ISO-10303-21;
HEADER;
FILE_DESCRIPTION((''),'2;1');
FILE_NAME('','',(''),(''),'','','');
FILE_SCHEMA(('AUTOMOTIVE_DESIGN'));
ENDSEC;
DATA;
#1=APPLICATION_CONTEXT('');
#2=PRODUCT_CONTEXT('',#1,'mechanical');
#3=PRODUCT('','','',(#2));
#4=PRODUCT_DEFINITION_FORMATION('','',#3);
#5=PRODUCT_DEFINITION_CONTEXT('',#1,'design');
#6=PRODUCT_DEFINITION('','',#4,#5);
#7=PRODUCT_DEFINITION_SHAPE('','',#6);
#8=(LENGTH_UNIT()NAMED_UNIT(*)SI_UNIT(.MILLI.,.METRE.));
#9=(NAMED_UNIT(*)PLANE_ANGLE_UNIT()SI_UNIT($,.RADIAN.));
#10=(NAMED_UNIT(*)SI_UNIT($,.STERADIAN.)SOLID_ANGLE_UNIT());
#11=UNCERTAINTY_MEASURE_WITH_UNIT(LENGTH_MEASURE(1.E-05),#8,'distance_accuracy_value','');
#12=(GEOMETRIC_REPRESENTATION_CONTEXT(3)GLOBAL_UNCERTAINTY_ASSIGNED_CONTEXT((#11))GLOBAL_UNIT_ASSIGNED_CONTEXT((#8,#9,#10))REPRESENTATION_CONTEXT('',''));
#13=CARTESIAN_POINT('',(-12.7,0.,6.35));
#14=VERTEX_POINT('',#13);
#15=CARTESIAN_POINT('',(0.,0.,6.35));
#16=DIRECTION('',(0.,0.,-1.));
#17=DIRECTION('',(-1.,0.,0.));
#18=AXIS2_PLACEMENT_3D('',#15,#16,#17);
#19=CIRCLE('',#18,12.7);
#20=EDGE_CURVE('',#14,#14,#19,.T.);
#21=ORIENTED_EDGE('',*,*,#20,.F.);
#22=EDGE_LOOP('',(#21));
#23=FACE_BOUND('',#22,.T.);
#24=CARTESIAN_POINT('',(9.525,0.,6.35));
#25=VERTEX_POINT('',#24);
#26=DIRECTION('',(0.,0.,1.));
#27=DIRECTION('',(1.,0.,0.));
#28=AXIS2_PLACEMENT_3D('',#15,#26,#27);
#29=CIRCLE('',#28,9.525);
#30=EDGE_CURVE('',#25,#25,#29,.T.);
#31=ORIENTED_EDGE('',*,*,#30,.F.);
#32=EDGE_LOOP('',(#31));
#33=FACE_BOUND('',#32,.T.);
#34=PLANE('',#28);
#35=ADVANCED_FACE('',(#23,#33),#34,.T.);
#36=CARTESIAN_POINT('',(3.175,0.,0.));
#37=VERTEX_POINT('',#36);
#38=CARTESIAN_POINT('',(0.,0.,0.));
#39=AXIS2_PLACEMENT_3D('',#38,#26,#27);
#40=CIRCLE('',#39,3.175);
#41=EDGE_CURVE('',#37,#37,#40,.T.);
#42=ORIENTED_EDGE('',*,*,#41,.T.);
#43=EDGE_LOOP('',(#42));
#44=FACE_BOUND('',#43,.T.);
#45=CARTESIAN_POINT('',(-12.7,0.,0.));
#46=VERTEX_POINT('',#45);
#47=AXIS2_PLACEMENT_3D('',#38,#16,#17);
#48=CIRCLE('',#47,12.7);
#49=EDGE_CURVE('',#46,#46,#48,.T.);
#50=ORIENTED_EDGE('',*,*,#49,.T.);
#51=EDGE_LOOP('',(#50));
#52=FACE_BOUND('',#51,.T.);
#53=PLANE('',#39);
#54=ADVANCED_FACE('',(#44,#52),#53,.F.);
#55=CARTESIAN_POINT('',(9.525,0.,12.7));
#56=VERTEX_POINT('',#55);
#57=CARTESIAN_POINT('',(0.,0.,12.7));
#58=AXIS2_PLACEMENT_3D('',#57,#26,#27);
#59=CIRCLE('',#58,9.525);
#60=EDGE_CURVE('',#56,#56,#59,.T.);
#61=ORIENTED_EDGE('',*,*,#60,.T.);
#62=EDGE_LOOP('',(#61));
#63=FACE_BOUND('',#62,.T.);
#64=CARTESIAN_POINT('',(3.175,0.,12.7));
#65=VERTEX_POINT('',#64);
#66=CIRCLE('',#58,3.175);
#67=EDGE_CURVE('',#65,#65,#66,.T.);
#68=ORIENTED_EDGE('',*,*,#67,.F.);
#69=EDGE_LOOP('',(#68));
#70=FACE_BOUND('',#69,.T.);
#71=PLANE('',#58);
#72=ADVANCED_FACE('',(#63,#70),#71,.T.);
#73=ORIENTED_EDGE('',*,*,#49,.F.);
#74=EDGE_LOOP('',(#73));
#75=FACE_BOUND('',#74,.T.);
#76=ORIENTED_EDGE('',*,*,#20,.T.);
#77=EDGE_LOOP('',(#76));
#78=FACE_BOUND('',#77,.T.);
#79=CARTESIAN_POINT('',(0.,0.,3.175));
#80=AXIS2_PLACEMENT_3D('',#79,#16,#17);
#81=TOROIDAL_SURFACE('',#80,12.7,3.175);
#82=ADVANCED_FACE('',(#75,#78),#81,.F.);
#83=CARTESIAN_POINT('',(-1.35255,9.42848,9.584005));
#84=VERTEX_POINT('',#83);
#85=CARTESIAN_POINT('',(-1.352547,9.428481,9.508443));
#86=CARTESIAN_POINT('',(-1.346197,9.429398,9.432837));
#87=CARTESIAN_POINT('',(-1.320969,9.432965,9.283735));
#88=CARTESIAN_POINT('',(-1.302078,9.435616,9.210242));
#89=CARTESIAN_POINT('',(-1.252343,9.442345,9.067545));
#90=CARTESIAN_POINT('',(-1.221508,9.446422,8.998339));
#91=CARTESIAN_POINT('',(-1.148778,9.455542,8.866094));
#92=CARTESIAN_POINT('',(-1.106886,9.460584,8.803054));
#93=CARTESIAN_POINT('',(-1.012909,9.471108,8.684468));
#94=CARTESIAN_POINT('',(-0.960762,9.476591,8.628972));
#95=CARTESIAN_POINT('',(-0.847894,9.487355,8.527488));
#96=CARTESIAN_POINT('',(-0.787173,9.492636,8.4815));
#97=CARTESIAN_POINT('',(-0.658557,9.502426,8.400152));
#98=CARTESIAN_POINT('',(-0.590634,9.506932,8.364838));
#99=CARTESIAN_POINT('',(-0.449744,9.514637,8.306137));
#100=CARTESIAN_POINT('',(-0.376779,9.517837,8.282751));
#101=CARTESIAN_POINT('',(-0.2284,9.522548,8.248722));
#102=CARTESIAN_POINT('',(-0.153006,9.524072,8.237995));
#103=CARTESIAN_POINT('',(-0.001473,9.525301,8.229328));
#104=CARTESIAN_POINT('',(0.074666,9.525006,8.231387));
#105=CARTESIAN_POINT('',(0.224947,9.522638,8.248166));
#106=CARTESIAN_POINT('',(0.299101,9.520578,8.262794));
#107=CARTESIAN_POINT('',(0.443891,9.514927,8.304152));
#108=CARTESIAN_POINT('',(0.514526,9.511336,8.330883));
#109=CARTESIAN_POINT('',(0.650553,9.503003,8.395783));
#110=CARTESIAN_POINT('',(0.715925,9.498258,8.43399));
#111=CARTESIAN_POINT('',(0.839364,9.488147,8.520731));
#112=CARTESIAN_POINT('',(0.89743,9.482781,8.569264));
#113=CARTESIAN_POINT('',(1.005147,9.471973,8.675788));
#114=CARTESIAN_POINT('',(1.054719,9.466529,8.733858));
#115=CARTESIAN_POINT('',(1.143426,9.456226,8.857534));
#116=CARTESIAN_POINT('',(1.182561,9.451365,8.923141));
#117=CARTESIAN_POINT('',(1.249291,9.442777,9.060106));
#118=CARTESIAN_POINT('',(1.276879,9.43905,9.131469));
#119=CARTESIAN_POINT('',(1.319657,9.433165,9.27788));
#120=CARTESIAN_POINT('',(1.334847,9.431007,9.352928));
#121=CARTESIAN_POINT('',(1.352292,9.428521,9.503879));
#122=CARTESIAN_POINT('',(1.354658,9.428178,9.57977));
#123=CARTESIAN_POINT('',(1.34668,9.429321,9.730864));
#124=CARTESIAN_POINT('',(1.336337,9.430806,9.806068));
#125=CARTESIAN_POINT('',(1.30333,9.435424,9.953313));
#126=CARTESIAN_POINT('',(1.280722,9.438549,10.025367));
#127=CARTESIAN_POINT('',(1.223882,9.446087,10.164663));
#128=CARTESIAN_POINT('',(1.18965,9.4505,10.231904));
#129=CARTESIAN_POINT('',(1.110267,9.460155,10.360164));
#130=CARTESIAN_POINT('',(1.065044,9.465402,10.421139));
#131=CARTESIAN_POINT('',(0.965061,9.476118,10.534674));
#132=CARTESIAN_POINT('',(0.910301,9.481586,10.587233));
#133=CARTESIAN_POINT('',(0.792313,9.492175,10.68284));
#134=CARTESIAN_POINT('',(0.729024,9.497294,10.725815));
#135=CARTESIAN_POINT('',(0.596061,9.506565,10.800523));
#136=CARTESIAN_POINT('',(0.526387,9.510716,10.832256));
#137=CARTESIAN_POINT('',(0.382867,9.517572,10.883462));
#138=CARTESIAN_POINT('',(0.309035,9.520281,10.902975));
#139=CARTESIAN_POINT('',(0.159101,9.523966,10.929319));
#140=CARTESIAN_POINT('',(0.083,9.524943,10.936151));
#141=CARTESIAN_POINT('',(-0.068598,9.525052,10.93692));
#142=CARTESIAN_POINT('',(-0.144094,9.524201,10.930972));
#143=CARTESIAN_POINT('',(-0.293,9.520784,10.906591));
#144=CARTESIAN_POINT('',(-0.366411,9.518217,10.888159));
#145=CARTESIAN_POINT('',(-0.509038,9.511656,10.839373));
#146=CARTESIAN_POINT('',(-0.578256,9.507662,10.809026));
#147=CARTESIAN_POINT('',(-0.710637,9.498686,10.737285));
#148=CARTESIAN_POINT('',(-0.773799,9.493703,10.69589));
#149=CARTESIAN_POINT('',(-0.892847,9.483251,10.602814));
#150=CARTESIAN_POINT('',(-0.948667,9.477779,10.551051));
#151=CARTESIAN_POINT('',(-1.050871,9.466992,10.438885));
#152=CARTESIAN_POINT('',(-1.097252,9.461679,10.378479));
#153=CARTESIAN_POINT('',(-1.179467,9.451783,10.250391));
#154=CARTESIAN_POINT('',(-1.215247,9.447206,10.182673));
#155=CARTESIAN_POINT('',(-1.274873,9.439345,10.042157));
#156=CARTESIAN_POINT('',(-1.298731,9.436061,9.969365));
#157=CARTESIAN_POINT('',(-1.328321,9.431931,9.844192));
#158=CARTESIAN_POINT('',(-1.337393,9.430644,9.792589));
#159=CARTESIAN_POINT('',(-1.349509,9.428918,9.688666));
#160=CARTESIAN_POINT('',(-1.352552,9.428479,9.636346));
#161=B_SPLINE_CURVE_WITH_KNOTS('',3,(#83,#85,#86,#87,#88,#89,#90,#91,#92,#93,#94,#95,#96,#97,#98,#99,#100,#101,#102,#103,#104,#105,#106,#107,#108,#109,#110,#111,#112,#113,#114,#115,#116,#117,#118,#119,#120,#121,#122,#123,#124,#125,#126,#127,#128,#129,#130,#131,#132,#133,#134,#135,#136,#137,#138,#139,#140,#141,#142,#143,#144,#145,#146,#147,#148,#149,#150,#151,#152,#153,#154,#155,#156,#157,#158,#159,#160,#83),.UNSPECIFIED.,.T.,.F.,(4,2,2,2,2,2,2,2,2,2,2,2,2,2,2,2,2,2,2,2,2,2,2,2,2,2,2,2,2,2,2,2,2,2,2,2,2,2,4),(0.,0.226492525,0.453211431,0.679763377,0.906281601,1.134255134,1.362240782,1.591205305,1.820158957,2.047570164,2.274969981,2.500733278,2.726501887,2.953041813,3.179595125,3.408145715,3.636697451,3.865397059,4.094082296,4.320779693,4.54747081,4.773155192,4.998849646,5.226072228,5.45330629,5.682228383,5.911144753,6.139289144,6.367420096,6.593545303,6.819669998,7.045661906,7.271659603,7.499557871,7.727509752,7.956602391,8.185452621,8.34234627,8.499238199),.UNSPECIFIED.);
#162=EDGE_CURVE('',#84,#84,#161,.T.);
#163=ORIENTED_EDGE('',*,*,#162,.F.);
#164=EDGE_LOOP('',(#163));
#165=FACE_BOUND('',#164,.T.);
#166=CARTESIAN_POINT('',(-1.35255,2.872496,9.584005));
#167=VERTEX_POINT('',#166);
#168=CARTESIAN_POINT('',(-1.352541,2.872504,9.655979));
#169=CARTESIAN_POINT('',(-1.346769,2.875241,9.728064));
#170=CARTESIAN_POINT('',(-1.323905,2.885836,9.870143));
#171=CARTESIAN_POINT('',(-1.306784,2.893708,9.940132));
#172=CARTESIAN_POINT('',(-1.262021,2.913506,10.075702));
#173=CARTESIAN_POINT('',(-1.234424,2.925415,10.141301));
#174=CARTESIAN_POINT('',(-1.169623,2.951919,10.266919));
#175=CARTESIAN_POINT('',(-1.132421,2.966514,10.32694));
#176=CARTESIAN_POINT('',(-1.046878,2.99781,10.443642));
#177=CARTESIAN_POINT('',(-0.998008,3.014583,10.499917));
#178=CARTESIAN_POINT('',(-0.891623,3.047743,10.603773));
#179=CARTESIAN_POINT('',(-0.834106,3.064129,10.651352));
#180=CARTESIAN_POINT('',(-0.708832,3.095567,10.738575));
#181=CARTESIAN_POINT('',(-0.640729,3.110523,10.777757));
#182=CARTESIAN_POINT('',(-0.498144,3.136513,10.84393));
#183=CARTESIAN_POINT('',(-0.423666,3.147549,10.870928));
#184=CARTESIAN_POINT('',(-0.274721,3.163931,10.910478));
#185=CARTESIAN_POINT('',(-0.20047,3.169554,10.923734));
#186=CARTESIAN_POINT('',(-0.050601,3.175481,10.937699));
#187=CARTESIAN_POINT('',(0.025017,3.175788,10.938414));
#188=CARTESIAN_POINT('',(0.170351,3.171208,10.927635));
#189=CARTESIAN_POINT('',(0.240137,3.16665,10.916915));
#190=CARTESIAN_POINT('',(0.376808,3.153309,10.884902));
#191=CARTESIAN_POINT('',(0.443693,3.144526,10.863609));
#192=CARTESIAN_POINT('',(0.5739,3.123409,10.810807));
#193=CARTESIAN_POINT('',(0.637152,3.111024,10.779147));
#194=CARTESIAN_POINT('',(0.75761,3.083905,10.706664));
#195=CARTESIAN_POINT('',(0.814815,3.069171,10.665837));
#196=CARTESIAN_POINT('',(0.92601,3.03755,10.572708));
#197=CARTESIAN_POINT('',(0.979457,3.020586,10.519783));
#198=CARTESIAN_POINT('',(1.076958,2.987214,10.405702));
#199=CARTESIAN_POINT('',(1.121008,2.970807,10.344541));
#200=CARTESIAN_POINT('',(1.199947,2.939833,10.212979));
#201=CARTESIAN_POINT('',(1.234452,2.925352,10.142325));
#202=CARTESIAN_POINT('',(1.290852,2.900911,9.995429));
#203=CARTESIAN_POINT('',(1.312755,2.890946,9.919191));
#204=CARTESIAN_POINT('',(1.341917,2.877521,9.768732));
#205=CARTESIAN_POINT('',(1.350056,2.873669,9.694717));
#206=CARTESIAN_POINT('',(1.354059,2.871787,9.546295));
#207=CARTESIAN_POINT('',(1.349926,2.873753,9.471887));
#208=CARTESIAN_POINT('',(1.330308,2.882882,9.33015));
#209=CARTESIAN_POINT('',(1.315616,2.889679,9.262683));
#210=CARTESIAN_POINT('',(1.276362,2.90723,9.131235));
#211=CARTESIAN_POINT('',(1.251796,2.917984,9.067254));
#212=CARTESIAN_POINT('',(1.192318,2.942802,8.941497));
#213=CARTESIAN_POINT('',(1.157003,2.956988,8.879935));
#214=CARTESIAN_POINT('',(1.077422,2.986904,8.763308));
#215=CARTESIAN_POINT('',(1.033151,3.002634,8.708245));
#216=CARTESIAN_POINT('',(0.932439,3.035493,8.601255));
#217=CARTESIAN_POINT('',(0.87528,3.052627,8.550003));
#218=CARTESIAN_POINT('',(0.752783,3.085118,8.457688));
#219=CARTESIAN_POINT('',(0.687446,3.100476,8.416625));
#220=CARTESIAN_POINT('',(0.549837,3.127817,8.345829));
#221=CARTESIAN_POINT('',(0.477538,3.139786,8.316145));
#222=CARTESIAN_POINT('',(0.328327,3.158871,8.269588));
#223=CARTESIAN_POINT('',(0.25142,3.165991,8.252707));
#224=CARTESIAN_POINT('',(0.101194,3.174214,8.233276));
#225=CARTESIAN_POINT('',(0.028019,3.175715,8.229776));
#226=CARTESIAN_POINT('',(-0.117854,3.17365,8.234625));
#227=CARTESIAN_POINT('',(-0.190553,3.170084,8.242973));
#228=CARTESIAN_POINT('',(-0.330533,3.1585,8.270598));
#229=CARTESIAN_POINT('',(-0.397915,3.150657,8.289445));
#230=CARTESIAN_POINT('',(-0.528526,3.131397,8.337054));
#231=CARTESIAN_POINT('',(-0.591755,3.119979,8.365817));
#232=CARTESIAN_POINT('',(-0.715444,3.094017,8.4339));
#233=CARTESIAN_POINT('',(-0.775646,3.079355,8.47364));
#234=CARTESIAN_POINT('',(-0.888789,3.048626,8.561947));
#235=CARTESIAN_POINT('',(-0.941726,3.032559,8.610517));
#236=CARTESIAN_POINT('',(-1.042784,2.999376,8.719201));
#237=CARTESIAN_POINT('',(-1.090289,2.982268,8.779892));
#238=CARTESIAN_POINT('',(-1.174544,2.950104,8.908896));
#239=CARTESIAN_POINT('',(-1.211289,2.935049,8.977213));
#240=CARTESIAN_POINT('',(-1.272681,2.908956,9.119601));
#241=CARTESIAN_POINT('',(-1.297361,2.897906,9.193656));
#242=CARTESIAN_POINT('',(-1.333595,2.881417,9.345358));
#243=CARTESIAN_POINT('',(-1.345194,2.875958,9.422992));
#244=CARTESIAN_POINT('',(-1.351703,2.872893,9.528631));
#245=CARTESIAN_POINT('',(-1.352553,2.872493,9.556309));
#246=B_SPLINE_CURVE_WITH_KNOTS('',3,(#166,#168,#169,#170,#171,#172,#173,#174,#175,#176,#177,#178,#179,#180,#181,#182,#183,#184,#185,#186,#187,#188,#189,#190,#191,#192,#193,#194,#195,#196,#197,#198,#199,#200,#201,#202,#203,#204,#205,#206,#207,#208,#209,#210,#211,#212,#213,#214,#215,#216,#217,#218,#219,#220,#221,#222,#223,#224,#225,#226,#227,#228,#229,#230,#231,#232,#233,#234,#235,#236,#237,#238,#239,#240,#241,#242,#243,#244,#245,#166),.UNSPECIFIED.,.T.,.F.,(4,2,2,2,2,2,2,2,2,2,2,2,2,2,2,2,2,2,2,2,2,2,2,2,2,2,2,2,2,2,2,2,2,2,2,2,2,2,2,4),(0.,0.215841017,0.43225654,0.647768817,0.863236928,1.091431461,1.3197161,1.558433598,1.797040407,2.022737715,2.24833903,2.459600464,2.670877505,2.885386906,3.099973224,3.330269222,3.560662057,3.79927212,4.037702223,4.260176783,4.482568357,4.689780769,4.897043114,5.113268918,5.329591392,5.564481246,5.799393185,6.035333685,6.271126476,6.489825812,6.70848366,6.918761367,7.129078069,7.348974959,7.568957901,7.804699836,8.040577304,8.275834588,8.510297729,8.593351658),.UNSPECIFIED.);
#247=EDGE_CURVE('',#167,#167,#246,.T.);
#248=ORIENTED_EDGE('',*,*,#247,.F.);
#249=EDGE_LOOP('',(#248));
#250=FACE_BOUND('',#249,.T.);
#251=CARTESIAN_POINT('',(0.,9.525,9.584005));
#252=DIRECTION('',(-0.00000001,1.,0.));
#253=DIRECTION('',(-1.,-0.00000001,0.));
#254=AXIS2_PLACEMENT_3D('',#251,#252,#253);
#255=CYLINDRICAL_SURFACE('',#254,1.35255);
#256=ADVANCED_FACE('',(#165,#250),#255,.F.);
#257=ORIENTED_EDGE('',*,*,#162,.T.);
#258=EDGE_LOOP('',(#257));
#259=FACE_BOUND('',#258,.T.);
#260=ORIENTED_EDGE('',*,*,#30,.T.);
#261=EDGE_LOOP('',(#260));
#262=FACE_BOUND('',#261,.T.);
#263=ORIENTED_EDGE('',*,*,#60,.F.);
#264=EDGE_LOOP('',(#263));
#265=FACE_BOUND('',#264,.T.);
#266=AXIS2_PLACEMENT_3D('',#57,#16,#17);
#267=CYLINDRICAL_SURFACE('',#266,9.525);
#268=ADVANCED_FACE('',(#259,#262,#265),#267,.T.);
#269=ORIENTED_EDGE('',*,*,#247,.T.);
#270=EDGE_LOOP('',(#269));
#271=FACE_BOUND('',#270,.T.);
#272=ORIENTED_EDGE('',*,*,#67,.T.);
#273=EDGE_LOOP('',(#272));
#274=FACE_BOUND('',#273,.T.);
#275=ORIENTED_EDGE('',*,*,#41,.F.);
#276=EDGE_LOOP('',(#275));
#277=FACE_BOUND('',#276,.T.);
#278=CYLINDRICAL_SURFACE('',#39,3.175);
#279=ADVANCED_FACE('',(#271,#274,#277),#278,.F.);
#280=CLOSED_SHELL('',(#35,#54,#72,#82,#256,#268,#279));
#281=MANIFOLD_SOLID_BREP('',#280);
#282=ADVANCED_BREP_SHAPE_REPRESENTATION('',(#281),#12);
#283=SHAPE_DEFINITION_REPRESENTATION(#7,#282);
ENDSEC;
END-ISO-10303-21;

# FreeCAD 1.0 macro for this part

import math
import FreeCAD as App
import Part
import Sketcher

V = App.Vector
Q = App.Units.Quantity

doc = App.newDocument("Part")
body = doc.addObject("PartDesign::Body", "Body")

sketch1 = body.newObject("Sketcher::SketchObject", "Sketch")
sketch1.AttachmentSupport = (doc.getObject("XY_Plane"), [""])
sketch1.MapMode = "FlatFace"
sketch1.addGeometry(Part.Circle(V(0, 0, 0), V(0, 0, 1), 13), False)
sketch1.addConstraint([
    Sketcher.Constraint("Coincident", 0, 3, -1, 1),
    Sketcher.Constraint("Diameter", 0, Q("1 in")),
])
pad1 = body.newObject("PartDesign::Pad", "Pad")
pad1.Profile = sketch1
pad1.Length = Q("0.25 in")

sketch2 = body.newObject("Sketcher::SketchObject", "Sketch001")
sketch2.AttachmentSupport = (doc.getObject("XY_Plane"), [""])
sketch2.MapMode = "FlatFace"
sketch2.AttachmentOffset = App.Placement(V(0, 0, 0.25 * 25.4), App.Rotation())
sketch2.addGeometry(Part.Circle(V(0, 0, 0), V(0, 0, 1), 10), False)
sketch2.addConstraint([
    Sketcher.Constraint("Coincident", 0, 3, -1, 1),
    Sketcher.Constraint("Diameter", 0, Q("0.75 in")),
])
pad2 = body.newObject("PartDesign::Pad", "Pad001")
pad2.Profile = sketch2
pad2.Length = Q("0.25 in")

sketch3 = body.newObject("Sketcher::SketchObject", "Sketch002")
sketch3.AttachmentSupport = (doc.getObject("XY_Plane"), [""])
sketch3.MapMode = "FlatFace"
sketch3.AttachmentOffset = App.Placement(V(0, 0, 0.5 * 25.4), App.Rotation())
sketch3.addGeometry(Part.Circle(V(0, 0, 0), V(0, 0, 1), 3.2), False)
sketch3.addConstraint([
    Sketcher.Constraint("Coincident", 0, 3, -1, 1),
    Sketcher.Constraint("Diameter", 0, Q("0.25 in")),
])
pocket1 = body.newObject("PartDesign::Pocket", "Pocket")
pocket1.Profile = sketch3
pocket1.Length = Q("0.5 in")

sketch4 = body.newObject("Sketcher::SketchObject", "Sketch003")
sketch4.AttachmentSupport = (doc.getObject("XZ_Plane"), [""])
sketch4.MapMode = "FlatFace"
sketch4.addGeometry([
    Part.LineSegment(V(12.7, 6.3, 0), V(12.7, 0, 0)),
    Part.ArcOfCircle(Part.Circle(V(12.7, 3.2, 0), V(0, 0, 1), 3.2), math.radians(90), math.radians(270)),
], False)
sketch4.addConstraint([
    Sketcher.Constraint("Coincident", 0, 1, 1, 1),
    Sketcher.Constraint("Coincident", 1, 2, 0, 2),
    Sketcher.Constraint("Vertical", 0),
    Sketcher.Constraint("PointOnObject", 1, 2, -1),
    Sketcher.Constraint("Vertical", 1, 3, 0, 1),
    Sketcher.Constraint("Radius", 1, Q("0.125 in")),
    Sketcher.Constraint("DistanceX", -1, 1, 1, 3, Q("0.5 in")),
])
groove = body.newObject("PartDesign::Groove", "Groove")
groove.Profile = sketch4
groove.ReferenceAxis = (sketch4, ["V_Axis"])
groove.Angle = 360

sketch5 = body.newObject("Sketcher::SketchObject", "Sketch004")
sketch5.AttachmentSupport = (doc.getObject("XZ_Plane"), [""])
sketch5.MapMode = "FlatFace"
sketch5.AttachmentOffset = App.Placement(V(0, 0, -0.375 * 25.4), App.Rotation())
sketch5.addGeometry(Part.Circle(V(0, 9.6, 0), V(0, 0, 1), 1.4), False)
sketch5.addConstraint([
    Sketcher.Constraint("PointOnObject", 0, 3, -2),
    Sketcher.Constraint("Diameter", 0, Q("0.1065 in")),
    Sketcher.Constraint("DistanceY", -1, 1, 0, 3, 9.584005),
])
doc.recompute()
hole = body.newObject("PartDesign::Hole", "Hole")
hole.Profile = sketch5
hole.ThreadType = "None"
hole.Diameter = Q("0.1065 in")
hole.DepthType = "Dimension"
hole.Depth = 9.524
hole.DrillPoint = "Angled"
hole.DrillPointAngle = 118
hole.Reversed = True

doc.recompute()
